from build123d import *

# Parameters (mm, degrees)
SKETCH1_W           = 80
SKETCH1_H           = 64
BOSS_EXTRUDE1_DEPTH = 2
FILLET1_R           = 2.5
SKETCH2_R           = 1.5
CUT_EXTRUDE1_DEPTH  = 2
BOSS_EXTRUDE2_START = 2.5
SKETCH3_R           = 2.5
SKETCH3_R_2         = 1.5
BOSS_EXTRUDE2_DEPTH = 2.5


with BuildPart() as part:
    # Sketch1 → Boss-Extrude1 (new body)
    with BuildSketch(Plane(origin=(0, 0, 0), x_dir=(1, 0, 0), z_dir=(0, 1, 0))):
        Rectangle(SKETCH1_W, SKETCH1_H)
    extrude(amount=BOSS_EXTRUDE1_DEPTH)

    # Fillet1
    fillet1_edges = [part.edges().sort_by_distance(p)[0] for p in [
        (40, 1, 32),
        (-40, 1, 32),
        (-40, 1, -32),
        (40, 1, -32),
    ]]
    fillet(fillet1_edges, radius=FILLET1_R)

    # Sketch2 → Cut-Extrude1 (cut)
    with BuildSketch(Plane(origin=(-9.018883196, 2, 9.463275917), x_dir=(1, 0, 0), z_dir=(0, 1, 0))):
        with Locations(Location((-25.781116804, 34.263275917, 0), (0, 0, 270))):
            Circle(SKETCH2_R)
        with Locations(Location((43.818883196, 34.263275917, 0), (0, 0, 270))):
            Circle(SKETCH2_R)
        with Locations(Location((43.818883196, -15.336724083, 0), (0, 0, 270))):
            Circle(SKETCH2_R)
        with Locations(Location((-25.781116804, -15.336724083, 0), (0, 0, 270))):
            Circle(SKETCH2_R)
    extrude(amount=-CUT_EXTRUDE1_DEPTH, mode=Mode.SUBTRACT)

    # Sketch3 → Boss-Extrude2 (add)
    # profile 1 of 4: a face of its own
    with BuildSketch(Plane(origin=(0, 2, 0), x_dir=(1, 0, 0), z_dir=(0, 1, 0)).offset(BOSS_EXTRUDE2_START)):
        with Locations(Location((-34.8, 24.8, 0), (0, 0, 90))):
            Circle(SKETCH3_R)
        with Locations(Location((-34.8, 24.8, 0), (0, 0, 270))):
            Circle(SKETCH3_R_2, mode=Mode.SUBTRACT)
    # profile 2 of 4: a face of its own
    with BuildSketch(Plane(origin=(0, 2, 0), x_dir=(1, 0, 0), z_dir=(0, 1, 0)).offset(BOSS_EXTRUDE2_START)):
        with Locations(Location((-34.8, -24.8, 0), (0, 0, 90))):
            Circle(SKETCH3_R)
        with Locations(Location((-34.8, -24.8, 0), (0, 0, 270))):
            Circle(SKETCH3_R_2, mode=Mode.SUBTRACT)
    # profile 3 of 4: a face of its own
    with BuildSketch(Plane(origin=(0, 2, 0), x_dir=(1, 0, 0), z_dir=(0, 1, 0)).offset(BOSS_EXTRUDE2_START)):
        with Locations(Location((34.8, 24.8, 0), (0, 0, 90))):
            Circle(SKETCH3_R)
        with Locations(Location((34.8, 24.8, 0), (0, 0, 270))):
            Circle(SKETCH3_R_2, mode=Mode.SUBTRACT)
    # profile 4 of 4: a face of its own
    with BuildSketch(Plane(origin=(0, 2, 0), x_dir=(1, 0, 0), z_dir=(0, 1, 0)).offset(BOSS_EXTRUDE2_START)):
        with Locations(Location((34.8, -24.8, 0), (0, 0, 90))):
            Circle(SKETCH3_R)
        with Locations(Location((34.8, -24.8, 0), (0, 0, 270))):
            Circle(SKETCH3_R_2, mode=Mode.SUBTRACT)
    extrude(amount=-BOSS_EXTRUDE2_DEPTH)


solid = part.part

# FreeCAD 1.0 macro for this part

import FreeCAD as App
import Part
import Sketcher
from FreeCAD import Vector


def edges_at(feature, points):
    """Names of the edges that pass closest to the given points."""
    edges = feature.Shape.Edges
    near = lambda p: min(range(len(edges)), key=lambda i: edges[i].distToShape(Part.Vertex(*p))[0])
    return sorted({f"Edge{near(p) + 1}" for p in points})


def add_polygon(sketch, points):
    """Adds a closed chain of lines whose ends are joined by coincident constraints."""
    first, n = sketch.GeometryCount, len(points)
    for a, b in zip(points, points[1:] + points[:1]):
        sketch.addGeometry(Part.LineSegment(App.Vector(*a, 0), App.Vector(*b, 0)), False)
    for i in range(n):
        sketch.addConstraint(Sketcher.Constraint("Coincident", first + i, 2, first + (i + 1) % n, 1))

doc = App.newDocument("Part")
body = doc.addObject("PartDesign::Body", "Body")

# Sketch on XZ plane
sketch1 = doc.addObject("Sketcher::SketchObject", "Sketch")
body.addObject(sketch1)
sketch1.AttachmentSupport = (doc.XZ_Plane, [""])
sketch1.MapMode = "FlatFace"
add_polygon(sketch1, [(-40, -32), (-40, 32), (40, 32), (40, -32)])  # lines 0-3
sketch1.addConstraint(Sketcher.Constraint("Vertical", 0))
sketch1.addConstraint(Sketcher.Constraint("Horizontal", 1))
sketch1.addConstraint(Sketcher.Constraint("Vertical", 2))
sketch1.addConstraint(Sketcher.Constraint("Horizontal", 3))
sketch1.addConstraint(Sketcher.Constraint("Symmetric", 0, 2, 2, 2, -1, 1))
sketch1.addConstraint(Sketcher.Constraint("DistanceX", 1, 1, 1, 2, 80.0))
sketch1.addConstraint(Sketcher.Constraint("DistanceY", 0, 1, 0, 2, 64.0))
pad1 = doc.addObject("PartDesign::Pad", "Pad")
body.addObject(pad1)
pad1.Profile = sketch1
pad1.Length = 2
pad1.Reversed = True
doc.recompute()

fillet = doc.addObject("PartDesign::Fillet", "Fillet")
body.addObject(fillet)
fillet.Base = (pad1, edges_at(pad1, [
    (40, 1, 32),
    (-40, 1, 32),
    (-40, 1, -32),
    (40, 1, -32),
]))
fillet.Radius = 2.5

# Sketch on XZ plane
sketch2 = doc.addObject("Sketcher::SketchObject", "Sketch001")
body.addObject(sketch2)
sketch2.AttachmentSupport = (doc.XZ_Plane, [""])
sketch2.MapMode = "FlatFace"
sketch2.AttachmentOffset = App.Placement(Vector(0, 0, -2), App.Rotation())
sketch2.addGeometry(Part.Circle(Vector(-34.8, -24.8, 0), Vector(0, 0, 1), 1.5), False)
sketch2.addGeometry(Part.Circle(Vector(34.8, -24.8, 0), Vector(0, 0, 1), 1.5), False)
sketch2.addGeometry(Part.Circle(Vector(34.8, 24.8, 0), Vector(0, 0, 1), 1.5), False)
sketch2.addGeometry(Part.Circle(Vector(-34.8, 24.8, 0), Vector(0, 0, 1), 1.5), False)
sketch2.addConstraint(Sketcher.Constraint("Equal", 0, 1))
sketch2.addConstraint(Sketcher.Constraint("Equal", 1, 2))
sketch2.addConstraint(Sketcher.Constraint("Equal", 2, 3))
sketch2.addConstraint(Sketcher.Constraint("Symmetric", 0, 3, 2, 3, -1, 1))
sketch2.addConstraint(Sketcher.Constraint("Symmetric", 1, 3, 3, 3, -1, 1))
sketch2.addConstraint(Sketcher.Constraint("Symmetric", 0, 3, 1, 3, -2))
sketch2.addConstraint(Sketcher.Constraint("Diameter", 0, 3.0))
sketch2.addConstraint(Sketcher.Constraint("DistanceX", 0, 3, -1, 1, 34.8))
sketch2.addConstraint(Sketcher.Constraint("DistanceY", 0, 3, -1, 1, 24.8))
pocket1 = doc.addObject("PartDesign::Pocket", "Pocket")
body.addObject(pocket1)
pocket1.Profile = sketch2
pocket1.Length = 2
pocket1.Reversed = True

# Sketch on XZ plane
sketch3 = doc.addObject("Sketcher::SketchObject", "Sketch002")
body.addObject(sketch3)
sketch3.AttachmentSupport = (doc.XZ_Plane, [""])
sketch3.MapMode = "FlatFace"
sketch3.AttachmentOffset = App.Placement(Vector(0, 0, -4.5), App.Rotation())
sketch3.addGeometry(Part.Circle(Vector(-34.8, -24.8, 0), Vector(0, 0, 1), 2.5), False)
sketch3.addGeometry(Part.Circle(Vector(-34.8, -24.8, 0), Vector(0, 0, 1), 1.5), False)
sketch3.addGeometry(Part.Circle(Vector(-34.8, 24.8, 0), Vector(0, 0, 1), 2.5), False)
sketch3.addGeometry(Part.Circle(Vector(-34.8, 24.8, 0), Vector(0, 0, 1), 1.5), False)
sketch3.addGeometry(Part.Circle(Vector(34.8, -24.8, 0), Vector(0, 0, 1), 2.5), False)
sketch3.addGeometry(Part.Circle(Vector(34.8, -24.8, 0), Vector(0, 0, 1), 1.5), False)
sketch3.addGeometry(Part.Circle(Vector(34.8, 24.8, 0), Vector(0, 0, 1), 2.5), False)
sketch3.addGeometry(Part.Circle(Vector(34.8, 24.8, 0), Vector(0, 0, 1), 1.5), False)
sketch3.addConstraint(Sketcher.Constraint("Coincident", 1, 3, 0, 3))
sketch3.addConstraint(Sketcher.Constraint("Coincident", 3, 3, 2, 3))
sketch3.addConstraint(Sketcher.Constraint("Coincident", 5, 3, 4, 3))
sketch3.addConstraint(Sketcher.Constraint("Coincident", 7, 3, 6, 3))
sketch3.addConstraint(Sketcher.Constraint("Equal", 0, 2))
sketch3.addConstraint(Sketcher.Constraint("Equal", 1, 3))
sketch3.addConstraint(Sketcher.Constraint("Equal", 2, 4))
sketch3.addConstraint(Sketcher.Constraint("Equal", 3, 5))
sketch3.addConstraint(Sketcher.Constraint("Equal", 4, 6))
sketch3.addConstraint(Sketcher.Constraint("Equal", 5, 7))
sketch3.addConstraint(Sketcher.Constraint("Symmetric", 2, 3, 4, 3, -1, 1))
sketch3.addConstraint(Sketcher.Constraint("Symmetric", 0, 3, 6, 3, -1, 1))
sketch3.addConstraint(Sketcher.Constraint("Symmetric", 0, 3, 4, 3, -2))
sketch3.addConstraint(Sketcher.Constraint("Diameter", 0, 5.0))
sketch3.addConstraint(Sketcher.Constraint("Diameter", 1, 3.0))
sketch3.addConstraint(Sketcher.Constraint("DistanceX", 0, 3, -1, 1, 34.8))
sketch3.addConstraint(Sketcher.Constraint("DistanceY", 0, 3, -1, 1, 24.8))
pad2 = doc.addObject("PartDesign::Pad", "Pad001")
body.addObject(pad2)
pad2.Profile = sketch3
pad2.Length = 2.5

doc.recompute()
